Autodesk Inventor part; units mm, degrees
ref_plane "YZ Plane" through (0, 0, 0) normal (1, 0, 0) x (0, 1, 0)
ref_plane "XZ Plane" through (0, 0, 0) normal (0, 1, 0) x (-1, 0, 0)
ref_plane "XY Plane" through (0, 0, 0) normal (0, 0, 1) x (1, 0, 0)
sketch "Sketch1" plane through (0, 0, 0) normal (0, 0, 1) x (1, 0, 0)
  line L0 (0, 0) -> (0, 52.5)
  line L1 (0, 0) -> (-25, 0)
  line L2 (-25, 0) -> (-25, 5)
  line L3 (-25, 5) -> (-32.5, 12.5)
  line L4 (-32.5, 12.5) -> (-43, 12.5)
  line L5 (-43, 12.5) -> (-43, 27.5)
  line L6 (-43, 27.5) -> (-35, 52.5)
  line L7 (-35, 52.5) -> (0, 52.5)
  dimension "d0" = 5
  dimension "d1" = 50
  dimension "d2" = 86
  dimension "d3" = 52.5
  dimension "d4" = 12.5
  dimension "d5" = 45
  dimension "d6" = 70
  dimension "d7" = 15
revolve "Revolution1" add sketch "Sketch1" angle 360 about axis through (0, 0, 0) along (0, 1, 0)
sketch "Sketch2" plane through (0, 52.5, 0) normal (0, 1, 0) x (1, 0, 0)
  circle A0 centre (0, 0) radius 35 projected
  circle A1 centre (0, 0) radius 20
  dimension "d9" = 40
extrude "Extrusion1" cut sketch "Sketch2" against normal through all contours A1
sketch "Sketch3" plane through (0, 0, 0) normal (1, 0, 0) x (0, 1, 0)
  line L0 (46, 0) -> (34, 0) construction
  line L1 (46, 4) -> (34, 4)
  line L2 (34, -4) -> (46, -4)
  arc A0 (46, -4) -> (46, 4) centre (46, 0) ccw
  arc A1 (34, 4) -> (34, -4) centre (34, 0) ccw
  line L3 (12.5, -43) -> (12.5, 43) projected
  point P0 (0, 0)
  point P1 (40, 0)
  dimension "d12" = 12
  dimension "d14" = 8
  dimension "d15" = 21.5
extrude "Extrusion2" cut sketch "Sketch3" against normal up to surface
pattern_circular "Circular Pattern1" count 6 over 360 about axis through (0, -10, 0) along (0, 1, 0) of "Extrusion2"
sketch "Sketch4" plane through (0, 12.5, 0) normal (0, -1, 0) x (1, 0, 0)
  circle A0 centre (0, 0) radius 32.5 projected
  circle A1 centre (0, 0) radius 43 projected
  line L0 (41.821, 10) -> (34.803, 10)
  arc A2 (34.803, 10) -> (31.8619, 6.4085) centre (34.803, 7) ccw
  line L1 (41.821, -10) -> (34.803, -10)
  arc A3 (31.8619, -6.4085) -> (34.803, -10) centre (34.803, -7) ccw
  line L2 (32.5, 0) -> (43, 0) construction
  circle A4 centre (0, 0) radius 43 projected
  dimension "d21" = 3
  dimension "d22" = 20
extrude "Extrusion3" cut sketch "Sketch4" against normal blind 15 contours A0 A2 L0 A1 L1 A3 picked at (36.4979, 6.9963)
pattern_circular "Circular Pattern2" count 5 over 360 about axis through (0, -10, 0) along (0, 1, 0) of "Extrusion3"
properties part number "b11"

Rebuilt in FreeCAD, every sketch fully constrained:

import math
import FreeCAD as App
import Part
import Sketcher
from FreeCAD import Vector
Q = App.Units.Quantity

doc = App.newDocument("Part")
body = doc.addObject("PartDesign::Body", "Body")

sketch1 = body.newObject("Sketcher::SketchObject", "Sketch")
sketch1.AttachmentSupport = (doc.getObject("XY_Plane"), [""])
sketch1.MapMode = "FlatFace"
sketch1.addGeometry(Part.LineSegment(Vector(-25, 0, 0), Vector(0, 0, 0)), False)
sketch1.addGeometry(Part.LineSegment(Vector(0, 0, 0), Vector(0, 52, 0)), False)
sketch1.addGeometry(Part.LineSegment(Vector(0, 52, 0), Vector(-35, 52, 0)), False)
sketch1.addGeometry(Part.LineSegment(Vector(-35, 52, 0), Vector(-43, 28, 0)), False)
sketch1.addGeometry(Part.LineSegment(Vector(-43, 28, 0), Vector(-43, 12, 0)), False)
sketch1.addGeometry(Part.LineSegment(Vector(-43, 12, 0), Vector(-32, 12, 0)), False)
sketch1.addGeometry(Part.LineSegment(Vector(-32, 12, 0), Vector(-25, 5, 0)), False)
sketch1.addGeometry(Part.LineSegment(Vector(-25, 5, 0), Vector(-25, 0, 0)), False)
sketch1.addConstraint(Sketcher.Constraint("Coincident", 0, 2, 1, 1))
sketch1.addConstraint(Sketcher.Constraint("Coincident", 1, 2, 2, 1))
sketch1.addConstraint(Sketcher.Constraint("Coincident", 2, 2, 3, 1))
sketch1.addConstraint(Sketcher.Constraint("Coincident", 3, 2, 4, 1))
sketch1.addConstraint(Sketcher.Constraint("Coincident", 4, 2, 5, 1))
sketch1.addConstraint(Sketcher.Constraint("Coincident", 5, 2, 6, 1))
sketch1.addConstraint(Sketcher.Constraint("Coincident", 6, 2, 7, 1))
sketch1.addConstraint(Sketcher.Constraint("Coincident", 7, 2, 0, 1))
sketch1.addConstraint(Sketcher.Constraint("Horizontal", 0))
sketch1.addConstraint(Sketcher.Constraint("Vertical", 1))
sketch1.addConstraint(Sketcher.Constraint("Horizontal", 2))
sketch1.addConstraint(Sketcher.Constraint("Vertical", 4))
sketch1.addConstraint(Sketcher.Constraint("Horizontal", 5))
sketch1.addConstraint(Sketcher.Constraint("Vertical", 7))
sketch1.addConstraint(Sketcher.Constraint("Coincident", 0, 2, -1, 1))
sketch1.addConstraint(Sketcher.Constraint("DistanceY", 4, 2, 4, 1, 15.0))
sketch1.addConstraint(Sketcher.Constraint("DistanceY", 7, 2, 7, 1, 5.0))
sketch1.addConstraint(Sketcher.Constraint("Angle", 6, Q("-45 deg")))
sketch1.addConstraint(Sketcher.Constraint("DistanceY", 1, 1, 1, 2, 52.5))
sketch1.addConstraint(Sketcher.Constraint("DistanceY", -1, 1, 4, 2, 12.5))
sketch1.addConstraint(Sketcher.Constraint("DistanceX", 0, 1, 0, 2, 25.0))
sketch1.addConstraint(Sketcher.Constraint("DistanceX", 2, 2, 2, 1, 35.0))
sketch1.addConstraint(Sketcher.Constraint("DistanceX", 5, 1, 5, 2, 10.5))
revolution = body.newObject("PartDesign::Revolution", "Revolution")
revolution.Profile = sketch1
revolution.ReferenceAxis = (sketch1, ["V_Axis"])
revolution.Angle = 360

sketch2 = body.newObject("Sketcher::SketchObject", "Sketch001")
sketch2.AttachmentSupport = (doc.getObject("XZ_Plane"), [""])
sketch2.MapMode = "FlatFace"
sketch2.AttachmentOffset = App.Placement(Vector(0, 0, -52.5), App.Rotation())
sketch2.addGeometry(Part.Circle(Vector(0, 0, 0), Vector(0, 0, 1), 20), False)
sketch2.addConstraint(Sketcher.Constraint("Coincident", 0, 3, -1, 1))
sketch2.addConstraint(Sketcher.Constraint("Diameter", 0, 40.0))
pocket1 = body.newObject("PartDesign::Pocket", "Pocket")
pocket1.Profile = sketch2
pocket1.Type = "ThroughAll"
pocket1.Reversed = True

sketch3 = body.newObject("Sketcher::SketchObject", "Sketch002")
sketch3.AttachmentSupport = (doc.getObject("YZ_Plane"), [""])
sketch3.MapMode = "FlatFace"
sketch3.addGeometry(Part.ArcOfCircle(Part.Circle(Vector(46, 0, 0), Vector(0, 0, 1), 4), math.radians(-90), math.radians(90)), False)
sketch3.addGeometry(Part.LineSegment(Vector(46, 4, 0), Vector(34, 4, 0)), False)
sketch3.addGeometry(Part.ArcOfCircle(Part.Circle(Vector(34, 0, 0), Vector(0, 0, 1), 4), math.radians(90), math.radians(270)), False)
sketch3.addGeometry(Part.LineSegment(Vector(34, -4, 0), Vector(46, -4, 0)), False)
sketch3.addConstraint(Sketcher.Constraint("Tangent", 0, 2, 1, 1))
sketch3.addConstraint(Sketcher.Constraint("Tangent", 1, 2, 2, 1))
sketch3.addConstraint(Sketcher.Constraint("Tangent", 2, 2, 3, 1))
sketch3.addConstraint(Sketcher.Constraint("Tangent", 3, 2, 0, 1))
sketch3.addConstraint(Sketcher.Constraint("Horizontal", 1))
sketch3.addConstraint(Sketcher.Constraint("Horizontal", 3))
sketch3.addConstraint(Sketcher.Constraint("PointOnObject", 0, 3, -1))
sketch3.addConstraint(Sketcher.Constraint("Radius", 0, 4.0))
sketch3.addConstraint(Sketcher.Constraint("DistanceX", 1, 2, 1, 1, 12.0))
sketch3.addConstraint(Sketcher.Constraint("DistanceX", -1, 1, 0, 3, 46.0))
pocket2 = body.newObject("PartDesign::Pocket", "Pocket001")
pocket2.Profile = sketch3
pocket2.Length = 42.2
doc.recompute()

polarpattern = body.newObject("PartDesign::PolarPattern", "PolarPattern")
polarpattern.Originals = [pocket2]
polarpattern.Axis = (doc.getObject("Y_Axis"), [""])
polarpattern.Angle = 360
polarpattern.Occurrences = 6
body.Tip = polarpattern

sketch4 = body.newObject("Sketcher::SketchObject", "Sketch003")
sketch4.AttachmentSupport = (doc.getObject("XZ_Plane"), [""])
sketch4.MapMode = "FlatFace"
sketch4.AttachmentOffset = App.Placement(Vector(0, 0, -12.5), App.Rotation())
sketch4.addGeometry(Part.ArcOfCircle(Part.Circle(Vector(0, 0, 0), Vector(0, 0, 1), 32.5), math.radians(-11), math.radians(11)), False)
sketch4.addGeometry(Part.ArcOfCircle(Part.Circle(Vector(34.8, -7, 0), Vector(0, 0, 1), 3), math.radians(169), math.radians(270)), False)
sketch4.addGeometry(Part.LineSegment(Vector(34.8, -10, 0), Vector(41.8, -10, 0)), False)
sketch4.addGeometry(Part.ArcOfCircle(Part.Circle(Vector(0, 0, 0), Vector(0, 0, 1), 43), math.radians(-13), math.radians(13)), False)
sketch4.addGeometry(Part.LineSegment(Vector(41.8, 10, 0), Vector(34.8, 10, 0)), False)
sketch4.addGeometry(Part.ArcOfCircle(Part.Circle(Vector(34.8, 7, 0), Vector(0, 0, 1), 3), math.radians(90), math.radians(191)), False)
sketch4.addConstraint(Sketcher.Constraint("Tangent", 0, 1, 1, 1))
sketch4.addConstraint(Sketcher.Constraint("Tangent", 1, 2, 2, 1))
sketch4.addConstraint(Sketcher.Constraint("Coincident", 2, 2, 3, 1))
sketch4.addConstraint(Sketcher.Constraint("Coincident", 3, 2, 4, 1))
sketch4.addConstraint(Sketcher.Constraint("Tangent", 4, 2, 5, 1))
sketch4.addConstraint(Sketcher.Constraint("Tangent", 5, 2, 0, 2))
sketch4.addConstraint(Sketcher.Constraint("Horizontal", 2))
sketch4.addConstraint(Sketcher.Constraint("Horizontal", 4))
sketch4.addConstraint(Sketcher.Constraint("Coincident", 0, 3, -1, 1))
sketch4.addConstraint(Sketcher.Constraint("Coincident", 3, 3, -1, 1))
sketch4.addConstraint(Sketcher.Constraint("Equal", 1, 5))
sketch4.addConstraint(Sketcher.Constraint("Vertical", 1, 3, 5, 3))
sketch4.addConstraint(Sketcher.Constraint("Radius", 1, 3.0))
sketch4.addConstraint(Sketcher.Constraint("Radius", 3, 43.0))
sketch4.addConstraint(Sketcher.Constraint("DistanceY", 2, 2, 3, 2, 20.0))
sketch4.addConstraint(Sketcher.Constraint("Radius", 0, 32.5))
pocket3 = body.newObject("PartDesign::Pocket", "Pocket002")
pocket3.Profile = sketch4
pocket3.Length = 15
doc.recompute()

polarpattern2 = body.newObject("PartDesign::PolarPattern", "PolarPattern001")
polarpattern2.Originals = [pocket3]
polarpattern2.Axis = (doc.getObject("Y_Axis"), [""])
polarpattern2.Angle = 360
polarpattern2.Occurrences = 5
body.Tip = polarpattern2

doc.recompute()
